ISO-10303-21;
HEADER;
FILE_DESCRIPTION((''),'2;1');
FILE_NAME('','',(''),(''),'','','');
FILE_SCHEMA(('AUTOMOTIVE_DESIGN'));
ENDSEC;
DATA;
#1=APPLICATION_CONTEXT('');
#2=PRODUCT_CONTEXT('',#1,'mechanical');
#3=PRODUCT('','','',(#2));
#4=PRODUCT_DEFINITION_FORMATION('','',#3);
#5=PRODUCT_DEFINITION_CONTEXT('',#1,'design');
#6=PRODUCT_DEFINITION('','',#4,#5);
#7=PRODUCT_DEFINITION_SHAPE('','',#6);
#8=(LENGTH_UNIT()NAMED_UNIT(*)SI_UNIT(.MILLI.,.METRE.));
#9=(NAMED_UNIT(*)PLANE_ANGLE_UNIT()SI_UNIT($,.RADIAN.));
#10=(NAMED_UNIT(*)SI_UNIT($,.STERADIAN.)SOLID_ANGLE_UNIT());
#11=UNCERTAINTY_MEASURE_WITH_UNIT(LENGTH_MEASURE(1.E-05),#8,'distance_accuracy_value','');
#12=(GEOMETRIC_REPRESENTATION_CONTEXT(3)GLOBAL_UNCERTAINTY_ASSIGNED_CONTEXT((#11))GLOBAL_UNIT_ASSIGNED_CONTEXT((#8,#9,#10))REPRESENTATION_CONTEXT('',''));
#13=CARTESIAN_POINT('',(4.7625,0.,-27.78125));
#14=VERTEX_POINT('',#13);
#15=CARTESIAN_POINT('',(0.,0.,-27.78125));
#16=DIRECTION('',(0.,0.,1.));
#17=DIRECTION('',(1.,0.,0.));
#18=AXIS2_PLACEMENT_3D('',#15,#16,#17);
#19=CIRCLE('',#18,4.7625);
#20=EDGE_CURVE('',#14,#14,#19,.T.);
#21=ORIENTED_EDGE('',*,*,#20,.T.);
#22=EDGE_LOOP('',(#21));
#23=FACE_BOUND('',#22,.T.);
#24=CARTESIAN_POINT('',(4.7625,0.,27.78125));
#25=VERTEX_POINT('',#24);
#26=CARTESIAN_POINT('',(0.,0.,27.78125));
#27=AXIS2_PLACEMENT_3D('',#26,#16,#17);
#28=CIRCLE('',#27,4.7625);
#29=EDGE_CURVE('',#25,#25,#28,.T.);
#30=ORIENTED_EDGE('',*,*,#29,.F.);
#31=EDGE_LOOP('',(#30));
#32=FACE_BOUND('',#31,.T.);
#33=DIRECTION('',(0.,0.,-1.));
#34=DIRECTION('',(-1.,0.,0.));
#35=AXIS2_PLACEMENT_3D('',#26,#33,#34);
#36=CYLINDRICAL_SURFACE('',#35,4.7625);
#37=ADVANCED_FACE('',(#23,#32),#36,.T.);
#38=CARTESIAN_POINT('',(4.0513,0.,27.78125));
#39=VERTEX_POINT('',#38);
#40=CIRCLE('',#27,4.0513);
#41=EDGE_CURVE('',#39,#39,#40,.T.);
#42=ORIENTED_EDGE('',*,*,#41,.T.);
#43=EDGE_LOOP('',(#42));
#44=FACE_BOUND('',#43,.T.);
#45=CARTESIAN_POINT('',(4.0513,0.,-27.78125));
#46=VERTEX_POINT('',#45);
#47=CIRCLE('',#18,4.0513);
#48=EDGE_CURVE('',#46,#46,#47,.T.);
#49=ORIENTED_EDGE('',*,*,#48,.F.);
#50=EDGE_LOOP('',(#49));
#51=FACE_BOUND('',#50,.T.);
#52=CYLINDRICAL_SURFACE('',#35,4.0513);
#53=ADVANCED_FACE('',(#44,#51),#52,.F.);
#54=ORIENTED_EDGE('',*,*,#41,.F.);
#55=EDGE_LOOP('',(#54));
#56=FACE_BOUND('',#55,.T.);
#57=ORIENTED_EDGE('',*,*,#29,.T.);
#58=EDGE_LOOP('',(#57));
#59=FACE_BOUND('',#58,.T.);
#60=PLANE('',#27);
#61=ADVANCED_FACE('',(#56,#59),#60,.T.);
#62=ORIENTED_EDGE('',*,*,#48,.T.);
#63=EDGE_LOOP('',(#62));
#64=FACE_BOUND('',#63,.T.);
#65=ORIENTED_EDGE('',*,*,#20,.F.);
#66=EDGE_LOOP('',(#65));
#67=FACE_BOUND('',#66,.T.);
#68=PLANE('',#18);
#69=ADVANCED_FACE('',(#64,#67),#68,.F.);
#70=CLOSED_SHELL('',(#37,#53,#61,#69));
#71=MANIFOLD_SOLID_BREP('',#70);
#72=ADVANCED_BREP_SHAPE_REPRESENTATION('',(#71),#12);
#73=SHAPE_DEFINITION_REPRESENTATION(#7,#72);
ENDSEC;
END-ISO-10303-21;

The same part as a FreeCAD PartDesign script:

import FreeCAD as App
import Part
import Sketcher
from FreeCAD import Vector
Q = App.Units.Quantity

doc = App.newDocument("Part")
params = doc.addObject("Spreadsheet::Sheet", "Params")
for row, (alias, value) in enumerate([
    ("sketch1_diameter", "0.375 in"),
    ("sketch1_diameter2", "0.319 in"),
    ("pad1_length", "2.1875 in"),
], start=1):
    params.set(f"A{row}", alias)
    params.set(f"B{row}", "=" + value)
    params.setAlias(f"B{row}", alias)

body = doc.addObject("PartDesign::Body", "Body")

sketch1 = body.newObject("Sketcher::SketchObject", "Sketch")
sketch1.AttachmentSupport = (doc.getObject("XY_Plane"), [""])
sketch1.MapMode = "FlatFace"
sketch1.addGeometry(Part.Circle(Vector(0, 0, 0), Vector(0, 0, 1), 4.7625), False)
sketch1.addGeometry(Part.Circle(Vector(0, 0, 0), Vector(0, 0, 1), 4.0513), False)
sketch1.addConstraint(Sketcher.Constraint("Coincident", 0, 3, -1, 1))
sketch1.addConstraint(Sketcher.Constraint("Coincident", 1, 3, -1, 1))
sketch1.addConstraint(Sketcher.Constraint("Diameter", 0, Q("0.375 in")))
sketch1.addConstraint(Sketcher.Constraint("Diameter", 1, Q("0.319 in")))
sketch1.setExpression("Constraints[2]", "Params.sketch1_diameter")
sketch1.setExpression("Constraints[3]", "Params.sketch1_diameter2")
pad1 = body.newObject("PartDesign::Pad", "Pad")
pad1.Profile = sketch1
pad1.setExpression("Length", "Params.pad1_length")
pad1.Midplane = True

doc.recompute()
